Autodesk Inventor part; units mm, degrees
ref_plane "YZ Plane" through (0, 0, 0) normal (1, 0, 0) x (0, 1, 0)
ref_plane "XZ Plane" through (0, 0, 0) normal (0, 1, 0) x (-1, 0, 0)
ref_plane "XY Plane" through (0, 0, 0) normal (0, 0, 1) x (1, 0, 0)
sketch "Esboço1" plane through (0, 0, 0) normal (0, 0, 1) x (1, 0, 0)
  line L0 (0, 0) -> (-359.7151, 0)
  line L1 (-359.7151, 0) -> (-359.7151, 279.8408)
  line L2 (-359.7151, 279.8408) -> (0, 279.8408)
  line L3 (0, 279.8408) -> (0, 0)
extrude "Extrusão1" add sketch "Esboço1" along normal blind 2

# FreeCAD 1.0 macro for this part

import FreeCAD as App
import Part
import Sketcher
from FreeCAD import Vector
Q = App.Units.Quantity


def add_polygon(sketch, points):
    """Adds a closed chain of lines whose ends are joined by coincident constraints."""
    first, n = sketch.GeometryCount, len(points)
    for a, b in zip(points, points[1:] + points[:1]):
        sketch.addGeometry(Part.LineSegment(App.Vector(*a, 0), App.Vector(*b, 0)), False)
    for i in range(n):
        sketch.addConstraint(Sketcher.Constraint("Coincident", first + i, 2, first + (i + 1) % n, 1))

doc = App.newDocument("Part")
body = doc.addObject("PartDesign::Body", "Body")

sketch1 = body.newObject("Sketcher::SketchObject", "Sketch")
sketch1.AttachmentSupport = (doc.getObject("XY_Plane"), [""])
sketch1.MapMode = "FlatFace"
add_polygon(sketch1, [(-360, 0), (0, 0), (0, 280), (-360, 280)])
sketch1.addConstraint([
    Sketcher.Constraint("Horizontal", 0),
    Sketcher.Constraint("Vertical", 1),
    Sketcher.Constraint("Horizontal", 2),
    Sketcher.Constraint("Vertical", 3),
    Sketcher.Constraint("Coincident", 0, 2, -1, 1),
    Sketcher.Constraint("DistanceX", 0, 1, 0, 2, Q("359.715 mm")),
    Sketcher.Constraint("DistanceY", 1, 1, 1, 2, Q("279.8408 mm")),
])
pad1 = body.newObject("PartDesign::Pad", "Pad")
pad1.Profile = sketch1
pad1.Length = 2

doc.recompute()
